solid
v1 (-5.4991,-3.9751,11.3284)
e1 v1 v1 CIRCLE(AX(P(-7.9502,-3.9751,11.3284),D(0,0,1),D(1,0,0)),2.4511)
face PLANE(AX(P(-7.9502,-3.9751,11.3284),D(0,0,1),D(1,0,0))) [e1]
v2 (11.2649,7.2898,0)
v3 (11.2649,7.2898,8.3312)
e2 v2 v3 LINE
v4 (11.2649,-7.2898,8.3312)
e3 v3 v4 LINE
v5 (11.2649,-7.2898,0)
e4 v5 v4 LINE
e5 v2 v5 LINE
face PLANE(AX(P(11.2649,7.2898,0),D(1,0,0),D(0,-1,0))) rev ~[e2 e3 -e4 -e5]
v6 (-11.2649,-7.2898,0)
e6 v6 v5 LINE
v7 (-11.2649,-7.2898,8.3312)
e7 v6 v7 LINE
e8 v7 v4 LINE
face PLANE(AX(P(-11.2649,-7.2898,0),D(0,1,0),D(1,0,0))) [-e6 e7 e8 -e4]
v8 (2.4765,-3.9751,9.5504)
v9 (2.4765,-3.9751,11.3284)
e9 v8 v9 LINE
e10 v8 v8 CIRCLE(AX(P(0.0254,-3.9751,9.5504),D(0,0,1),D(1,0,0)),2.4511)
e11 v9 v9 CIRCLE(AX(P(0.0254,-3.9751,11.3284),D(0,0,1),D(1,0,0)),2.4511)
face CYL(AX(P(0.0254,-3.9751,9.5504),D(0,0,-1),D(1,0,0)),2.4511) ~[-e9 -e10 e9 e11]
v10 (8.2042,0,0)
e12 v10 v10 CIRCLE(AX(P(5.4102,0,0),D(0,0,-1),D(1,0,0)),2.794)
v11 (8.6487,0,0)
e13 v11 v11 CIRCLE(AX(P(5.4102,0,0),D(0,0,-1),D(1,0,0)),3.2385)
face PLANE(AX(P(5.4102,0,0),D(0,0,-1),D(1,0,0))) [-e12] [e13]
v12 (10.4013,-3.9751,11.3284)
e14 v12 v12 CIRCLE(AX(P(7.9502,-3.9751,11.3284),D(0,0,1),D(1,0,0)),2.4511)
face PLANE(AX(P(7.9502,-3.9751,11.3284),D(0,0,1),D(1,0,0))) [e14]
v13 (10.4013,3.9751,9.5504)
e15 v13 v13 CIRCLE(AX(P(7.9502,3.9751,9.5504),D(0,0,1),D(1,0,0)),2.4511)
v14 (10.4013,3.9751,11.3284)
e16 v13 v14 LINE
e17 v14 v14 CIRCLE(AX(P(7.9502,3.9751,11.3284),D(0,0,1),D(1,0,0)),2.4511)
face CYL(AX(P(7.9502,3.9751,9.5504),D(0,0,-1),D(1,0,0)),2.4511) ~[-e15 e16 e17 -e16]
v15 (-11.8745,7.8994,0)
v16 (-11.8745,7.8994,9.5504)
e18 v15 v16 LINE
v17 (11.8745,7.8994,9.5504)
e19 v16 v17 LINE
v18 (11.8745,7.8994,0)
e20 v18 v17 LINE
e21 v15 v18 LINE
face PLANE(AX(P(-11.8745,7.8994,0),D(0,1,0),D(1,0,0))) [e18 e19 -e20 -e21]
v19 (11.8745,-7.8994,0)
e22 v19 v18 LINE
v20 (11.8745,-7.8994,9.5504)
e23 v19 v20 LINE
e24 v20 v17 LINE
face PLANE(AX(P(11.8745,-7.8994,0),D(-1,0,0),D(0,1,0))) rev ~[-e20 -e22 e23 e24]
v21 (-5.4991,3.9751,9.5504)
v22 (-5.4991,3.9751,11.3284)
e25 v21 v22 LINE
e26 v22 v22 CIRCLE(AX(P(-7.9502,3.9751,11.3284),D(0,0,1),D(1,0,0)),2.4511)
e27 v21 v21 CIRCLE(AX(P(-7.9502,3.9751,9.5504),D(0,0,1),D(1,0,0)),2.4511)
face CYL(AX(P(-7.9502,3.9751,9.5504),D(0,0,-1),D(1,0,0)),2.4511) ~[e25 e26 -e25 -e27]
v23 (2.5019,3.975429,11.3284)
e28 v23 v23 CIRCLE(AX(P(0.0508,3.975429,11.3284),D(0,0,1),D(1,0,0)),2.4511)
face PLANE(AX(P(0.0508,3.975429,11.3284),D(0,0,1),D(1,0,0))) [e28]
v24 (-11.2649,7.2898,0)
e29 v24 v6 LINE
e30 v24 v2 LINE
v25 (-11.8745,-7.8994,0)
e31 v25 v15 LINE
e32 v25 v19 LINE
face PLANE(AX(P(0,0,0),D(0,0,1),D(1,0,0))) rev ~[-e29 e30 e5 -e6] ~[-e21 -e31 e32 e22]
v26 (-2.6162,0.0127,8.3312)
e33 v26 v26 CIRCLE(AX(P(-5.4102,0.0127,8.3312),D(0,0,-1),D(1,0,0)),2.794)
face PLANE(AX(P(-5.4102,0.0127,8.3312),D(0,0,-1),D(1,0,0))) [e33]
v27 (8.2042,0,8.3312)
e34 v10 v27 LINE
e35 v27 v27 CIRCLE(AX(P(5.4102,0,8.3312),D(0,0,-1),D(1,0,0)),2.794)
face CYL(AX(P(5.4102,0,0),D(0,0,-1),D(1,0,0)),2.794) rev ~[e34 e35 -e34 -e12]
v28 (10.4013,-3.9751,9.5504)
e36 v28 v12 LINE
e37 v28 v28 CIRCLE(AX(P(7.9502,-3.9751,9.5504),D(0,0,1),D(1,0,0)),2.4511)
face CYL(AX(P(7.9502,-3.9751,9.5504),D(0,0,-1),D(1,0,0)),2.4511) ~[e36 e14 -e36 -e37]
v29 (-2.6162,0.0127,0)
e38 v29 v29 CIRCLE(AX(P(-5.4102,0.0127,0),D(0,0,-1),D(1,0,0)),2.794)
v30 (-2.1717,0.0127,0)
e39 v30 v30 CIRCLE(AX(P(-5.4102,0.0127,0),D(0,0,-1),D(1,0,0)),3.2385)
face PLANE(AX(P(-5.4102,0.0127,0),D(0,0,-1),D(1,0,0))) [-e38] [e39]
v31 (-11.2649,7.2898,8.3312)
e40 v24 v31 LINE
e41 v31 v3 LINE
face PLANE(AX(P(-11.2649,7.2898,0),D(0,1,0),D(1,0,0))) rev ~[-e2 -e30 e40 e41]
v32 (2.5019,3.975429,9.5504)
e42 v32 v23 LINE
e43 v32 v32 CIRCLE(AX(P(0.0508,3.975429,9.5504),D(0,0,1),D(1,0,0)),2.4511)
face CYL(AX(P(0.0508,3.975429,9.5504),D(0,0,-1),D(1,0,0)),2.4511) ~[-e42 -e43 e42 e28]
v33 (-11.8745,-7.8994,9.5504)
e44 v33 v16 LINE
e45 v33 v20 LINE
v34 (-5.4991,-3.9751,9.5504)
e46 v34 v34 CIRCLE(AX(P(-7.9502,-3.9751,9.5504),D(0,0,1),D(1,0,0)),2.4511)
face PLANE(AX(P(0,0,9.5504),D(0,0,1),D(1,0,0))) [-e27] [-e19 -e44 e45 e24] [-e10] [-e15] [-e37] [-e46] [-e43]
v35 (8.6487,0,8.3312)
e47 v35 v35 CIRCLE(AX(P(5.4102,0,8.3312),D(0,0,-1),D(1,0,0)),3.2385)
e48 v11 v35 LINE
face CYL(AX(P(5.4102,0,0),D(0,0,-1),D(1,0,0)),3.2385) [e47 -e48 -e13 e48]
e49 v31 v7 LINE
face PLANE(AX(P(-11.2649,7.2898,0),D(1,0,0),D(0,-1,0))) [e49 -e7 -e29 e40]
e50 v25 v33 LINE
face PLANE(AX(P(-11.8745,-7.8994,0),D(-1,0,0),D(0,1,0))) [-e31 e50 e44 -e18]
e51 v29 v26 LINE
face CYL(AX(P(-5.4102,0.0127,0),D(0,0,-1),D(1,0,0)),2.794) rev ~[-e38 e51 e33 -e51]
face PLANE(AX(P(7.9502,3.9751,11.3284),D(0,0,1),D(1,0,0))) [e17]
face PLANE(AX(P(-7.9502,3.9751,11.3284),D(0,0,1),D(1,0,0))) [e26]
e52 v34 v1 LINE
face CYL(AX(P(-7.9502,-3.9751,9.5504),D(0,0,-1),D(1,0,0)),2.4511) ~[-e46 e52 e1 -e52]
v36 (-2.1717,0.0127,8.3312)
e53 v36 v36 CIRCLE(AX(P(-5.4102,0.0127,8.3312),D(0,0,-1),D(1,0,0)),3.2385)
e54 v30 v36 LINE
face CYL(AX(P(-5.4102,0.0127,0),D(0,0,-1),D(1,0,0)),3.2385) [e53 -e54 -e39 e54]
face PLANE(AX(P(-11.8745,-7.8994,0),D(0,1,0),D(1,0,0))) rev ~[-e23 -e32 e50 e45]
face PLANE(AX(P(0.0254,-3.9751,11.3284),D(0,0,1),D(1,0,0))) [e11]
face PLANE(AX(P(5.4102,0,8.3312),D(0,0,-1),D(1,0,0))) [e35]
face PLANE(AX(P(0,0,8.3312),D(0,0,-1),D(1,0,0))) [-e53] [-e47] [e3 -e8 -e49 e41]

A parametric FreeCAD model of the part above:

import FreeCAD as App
import Part
import Sketcher
from FreeCAD import Vector
Q = App.Units.Quantity


def add_polygon(sketch, points):
    """Adds a closed chain of lines whose ends are joined by coincident constraints."""
    first, n = sketch.GeometryCount, len(points)
    for a, b in zip(points, points[1:] + points[:1]):
        sketch.addGeometry(Part.LineSegment(App.Vector(*a, 0), App.Vector(*b, 0)), False)
    for i in range(n):
        sketch.addConstraint(Sketcher.Constraint("Coincident", first + i, 2, first + (i + 1) % n, 1))

doc = App.newDocument("Part")
body = doc.addObject("PartDesign::Body", "Body")

sketch1 = doc.addObject("Sketcher::SketchObject", "Sketch")
body.addObject(sketch1)
sketch1.AttachmentSupport = (doc.XY_Plane, [""])
sketch1.MapMode = "FlatFace"
add_polygon(sketch1, [(-12, 8), (-12, -8), (12, -8), (12, 8)])
sketch1.addConstraint([
    Sketcher.Constraint("Vertical", 0),
    Sketcher.Constraint("Horizontal", 1),
    Sketcher.Constraint("Vertical", 2),
    Sketcher.Constraint("Horizontal", 3),
    Sketcher.Constraint("Symmetric", 0, 2, 2, 2, -1, 1),
    Sketcher.Constraint("DistanceX", 1, 1, 1, 2, Q("0.935 in")),
    Sketcher.Constraint("DistanceY", 0, 2, 0, 1, Q("0.622 in")),
])
pad1 = doc.addObject("PartDesign::Pad", "Pad")
body.addObject(pad1)
pad1.Profile = sketch1
pad1.Length = Q("0.376 in")

sketch2 = doc.addObject("Sketcher::SketchObject", "Sketch001")
body.addObject(sketch2)
sketch2.AttachmentSupport = (doc.XY_Plane, [""])
sketch2.MapMode = "FlatFace"
sketch2.AttachmentOffset = App.Placement(Vector(0, 0, 0.376 * 25.4), App.Rotation())
sketch2.addGeometry(Part.Circle(Vector(-8, 4, 0), Vector(0, 0, 1), 2.5), False)
sketch2.addConstraint([
    Sketcher.Constraint("Diameter", 0, Q("0.193 in")),
    Sketcher.Constraint("DistanceX", 0, 3, -1, 1, Q("0.313 in")),
    Sketcher.Constraint("DistanceY", -1, 1, 0, 3, Q("0.1565 in")),
])
pad2 = doc.addObject("PartDesign::Pad", "Pad001")
body.addObject(pad2)
pad2.Profile = sketch2
pad2.Length = Q("0.07 in")

sketch3 = doc.addObject("Sketcher::SketchObject", "Sketch002")
body.addObject(sketch3)
sketch3.AttachmentSupport = (doc.XY_Plane, [""])
sketch3.MapMode = "FlatFace"
sketch3.AttachmentOffset = App.Placement(Vector(0, 0, 0.376 * 25.4), App.Rotation())
sketch3.addGeometry(Part.Circle(Vector(8, 4, 0), Vector(0, 0, 1), 2.5), False)
sketch3.addConstraint([
    Sketcher.Constraint("Diameter", 0, Q("0.193 in")),
    Sketcher.Constraint("DistanceX", -1, 1, 0, 3, Q("0.313 in")),
    Sketcher.Constraint("DistanceY", -1, 1, 0, 3, Q("0.1565 in")),
])
pad3 = doc.addObject("PartDesign::Pad", "Pad002")
body.addObject(pad3)
pad3.Profile = sketch3
pad3.Length = Q("0.07 in")

sketch4 = doc.addObject("Sketcher::SketchObject", "Sketch003")
body.addObject(sketch4)
sketch4.AttachmentSupport = (doc.XY_Plane, [""])
sketch4.MapMode = "FlatFace"
sketch4.AttachmentOffset = App.Placement(Vector(0, 0, 0.376 * 25.4), App.Rotation())
sketch4.addGeometry(Part.Circle(Vector(8, -4, 0), Vector(0, 0, 1), 2.5), False)
sketch4.addConstraint([
    Sketcher.Constraint("Diameter", 0, Q("0.193 in")),
    Sketcher.Constraint("DistanceX", -1, 1, 0, 3, Q("0.313 in")),
    Sketcher.Constraint("DistanceY", 0, 3, -1, 1, Q("0.1565 in")),
])
pad4 = doc.addObject("PartDesign::Pad", "Pad003")
body.addObject(pad4)
pad4.Profile = sketch4
pad4.Length = Q("0.07 in")

sketch5 = doc.addObject("Sketcher::SketchObject", "Sketch004")
body.addObject(sketch5)
sketch5.AttachmentSupport = (doc.XY_Plane, [""])
sketch5.MapMode = "FlatFace"
sketch5.AttachmentOffset = App.Placement(Vector(0, 0, 0.376 * 25.4), App.Rotation())
sketch5.addGeometry(Part.Circle(Vector(0.1, 4, 0), Vector(0, 0, 1), 2.5), False)
sketch5.addConstraint([
    Sketcher.Constraint("Diameter", 0, Q("0.193 in")),
    Sketcher.Constraint("DistanceX", -1, 1, 0, 3, Q("0.002 in")),
    Sketcher.Constraint("DistanceY", -1, 1, 0, 3, 3.975429),
])
pad5 = doc.addObject("PartDesign::Pad", "Pad004")
body.addObject(pad5)
pad5.Profile = sketch5
pad5.Length = Q("0.07 in")

sketch6 = doc.addObject("Sketcher::SketchObject", "Sketch005")
body.addObject(sketch6)
sketch6.AttachmentSupport = (doc.XY_Plane, [""])
sketch6.MapMode = "FlatFace"
sketch6.AttachmentOffset = App.Placement(Vector(0, 0, 0.376 * 25.4), App.Rotation())
sketch6.addGeometry(Part.Circle(Vector(-8, -4, 0), Vector(0, 0, 1), 2.5), False)
sketch6.addConstraint([
    Sketcher.Constraint("Diameter", 0, Q("0.193 in")),
    Sketcher.Constraint("DistanceX", 0, 3, -1, 1, Q("0.313 in")),
    Sketcher.Constraint("DistanceY", 0, 3, -1, 1, Q("0.1565 in")),
])
pad6 = doc.addObject("PartDesign::Pad", "Pad005")
body.addObject(pad6)
pad6.Profile = sketch6
pad6.Length = Q("0.07 in")

sketch7 = doc.addObject("Sketcher::SketchObject", "Sketch006")
body.addObject(sketch7)
sketch7.AttachmentSupport = (doc.XY_Plane, [""])
sketch7.MapMode = "FlatFace"
sketch7.AttachmentOffset = App.Placement(Vector(0, 0, 0.376 * 25.4), App.Rotation())
sketch7.addGeometry(Part.Circle(Vector(0, -4, 0), Vector(0, 0, 1), 2.5), False)
sketch7.addConstraint([
    Sketcher.Constraint("Diameter", 0, Q("0.193 in")),
    Sketcher.Constraint("DistanceX", -1, 1, 0, 3, Q("0.001 in")),
    Sketcher.Constraint("DistanceY", 0, 3, -1, 1, Q("0.1565 in")),
])
pad7 = doc.addObject("PartDesign::Pad", "Pad006")
body.addObject(pad7)
pad7.Profile = sketch7
pad7.Length = Q("0.07 in")

sketch8 = doc.addObject("Sketcher::SketchObject", "Sketch007")
body.addObject(sketch8)
sketch8.AttachmentSupport = (doc.XY_Plane, [""])
sketch8.MapMode = "FlatFace"
add_polygon(sketch8, [(-11, -7), (-11, 7), (11, 7), (11, -7)])
sketch8.addConstraint([
    Sketcher.Constraint("Vertical", 0),
    Sketcher.Constraint("Horizontal", 1),
    Sketcher.Constraint("Vertical", 2),
    Sketcher.Constraint("Horizontal", 3),
    Sketcher.Constraint("Symmetric", 0, 2, 2, 2, -1, 1),
    Sketcher.Constraint("DistanceX", 1, 1, 1, 2, Q("0.887 in")),
    Sketcher.Constraint("DistanceY", 0, 1, 0, 2, Q("0.574 in")),
])
pocket1 = doc.addObject("PartDesign::Pocket", "Pocket")
body.addObject(pocket1)
pocket1.Profile = sketch8
pocket1.Length = Q("0.328 in")
pocket1.Reversed = True

sketch9 = doc.addObject("Sketcher::SketchObject", "Sketch008")
body.addObject(sketch9)
sketch9.AttachmentSupport = (doc.XY_Plane, [""])
sketch9.MapMode = "FlatFace"
sketch9.addGeometry(Part.Circle(Vector(-5.4, 0, 0), Vector(0, 0, 1), 3.2), False)
sketch9.addConstraint([
    Sketcher.Constraint("Diameter", 0, Q("0.255 in")),
    Sketcher.Constraint("DistanceX", 0, 3, -1, 1, Q("0.213 in")),
    Sketcher.Constraint("DistanceY", -1, 1, 0, 3, Q("0.0005 in")),
])
pad8 = doc.addObject("PartDesign::Pad", "Pad007")
body.addObject(pad8)
pad8.Profile = sketch9
pad8.Length = Q("0.328 in")

sketch10 = doc.addObject("Sketcher::SketchObject", "Sketch009")
body.addObject(sketch10)
sketch10.AttachmentSupport = (doc.XY_Plane, [""])
sketch10.MapMode = "FlatFace"
sketch10.addGeometry(Part.Circle(Vector(5.4, 0, 0), Vector(0, 0, 1), 3.2), False)
sketch10.addConstraint([
    Sketcher.Constraint("PointOnObject", 0, 3, -1),
    Sketcher.Constraint("Diameter", 0, Q("0.255 in")),
    Sketcher.Constraint("DistanceX", -1, 1, 0, 3, Q("0.213 in")),
])
pad9 = doc.addObject("PartDesign::Pad", "Pad008")
body.addObject(pad9)
pad9.Profile = sketch10
pad9.Length = Q("0.328 in")

sketch11 = doc.addObject("Sketcher::SketchObject", "Sketch010")
body.addObject(sketch11)
sketch11.AttachmentSupport = (doc.XY_Plane, [""])
sketch11.MapMode = "FlatFace"
sketch11.addGeometry(Part.Circle(Vector(-5.4, 0, 0), Vector(0, 0, 1), 2.8), False)
sketch11.addConstraint([
    Sketcher.Constraint("Diameter", 0, Q("0.22 in")),
    Sketcher.Constraint("DistanceX", 0, 3, -1, 1, Q("0.213 in")),
    Sketcher.Constraint("DistanceY", -1, 1, 0, 3, Q("0.0005 in")),
])
pocket2 = doc.addObject("PartDesign::Pocket", "Pocket001")
body.addObject(pocket2)
pocket2.Profile = sketch11
pocket2.Length = Q("0.328 in")
pocket2.Reversed = True

sketch12 = doc.addObject("Sketcher::SketchObject", "Sketch011")
body.addObject(sketch12)
sketch12.AttachmentSupport = (doc.XY_Plane, [""])
sketch12.MapMode = "FlatFace"
sketch12.addGeometry(Part.Circle(Vector(5.4, 0, 0), Vector(0, 0, 1), 2.8), False)
sketch12.addConstraint([
    Sketcher.Constraint("PointOnObject", 0, 3, -1),
    Sketcher.Constraint("Diameter", 0, Q("0.22 in")),
    Sketcher.Constraint("DistanceX", -1, 1, 0, 3, Q("0.213 in")),
])
pocket3 = doc.addObject("PartDesign::Pocket", "Pocket002")
body.addObject(pocket3)
pocket3.Profile = sketch12
pocket3.Length = Q("0.328 in")
pocket3.Reversed = True

doc.recompute()
